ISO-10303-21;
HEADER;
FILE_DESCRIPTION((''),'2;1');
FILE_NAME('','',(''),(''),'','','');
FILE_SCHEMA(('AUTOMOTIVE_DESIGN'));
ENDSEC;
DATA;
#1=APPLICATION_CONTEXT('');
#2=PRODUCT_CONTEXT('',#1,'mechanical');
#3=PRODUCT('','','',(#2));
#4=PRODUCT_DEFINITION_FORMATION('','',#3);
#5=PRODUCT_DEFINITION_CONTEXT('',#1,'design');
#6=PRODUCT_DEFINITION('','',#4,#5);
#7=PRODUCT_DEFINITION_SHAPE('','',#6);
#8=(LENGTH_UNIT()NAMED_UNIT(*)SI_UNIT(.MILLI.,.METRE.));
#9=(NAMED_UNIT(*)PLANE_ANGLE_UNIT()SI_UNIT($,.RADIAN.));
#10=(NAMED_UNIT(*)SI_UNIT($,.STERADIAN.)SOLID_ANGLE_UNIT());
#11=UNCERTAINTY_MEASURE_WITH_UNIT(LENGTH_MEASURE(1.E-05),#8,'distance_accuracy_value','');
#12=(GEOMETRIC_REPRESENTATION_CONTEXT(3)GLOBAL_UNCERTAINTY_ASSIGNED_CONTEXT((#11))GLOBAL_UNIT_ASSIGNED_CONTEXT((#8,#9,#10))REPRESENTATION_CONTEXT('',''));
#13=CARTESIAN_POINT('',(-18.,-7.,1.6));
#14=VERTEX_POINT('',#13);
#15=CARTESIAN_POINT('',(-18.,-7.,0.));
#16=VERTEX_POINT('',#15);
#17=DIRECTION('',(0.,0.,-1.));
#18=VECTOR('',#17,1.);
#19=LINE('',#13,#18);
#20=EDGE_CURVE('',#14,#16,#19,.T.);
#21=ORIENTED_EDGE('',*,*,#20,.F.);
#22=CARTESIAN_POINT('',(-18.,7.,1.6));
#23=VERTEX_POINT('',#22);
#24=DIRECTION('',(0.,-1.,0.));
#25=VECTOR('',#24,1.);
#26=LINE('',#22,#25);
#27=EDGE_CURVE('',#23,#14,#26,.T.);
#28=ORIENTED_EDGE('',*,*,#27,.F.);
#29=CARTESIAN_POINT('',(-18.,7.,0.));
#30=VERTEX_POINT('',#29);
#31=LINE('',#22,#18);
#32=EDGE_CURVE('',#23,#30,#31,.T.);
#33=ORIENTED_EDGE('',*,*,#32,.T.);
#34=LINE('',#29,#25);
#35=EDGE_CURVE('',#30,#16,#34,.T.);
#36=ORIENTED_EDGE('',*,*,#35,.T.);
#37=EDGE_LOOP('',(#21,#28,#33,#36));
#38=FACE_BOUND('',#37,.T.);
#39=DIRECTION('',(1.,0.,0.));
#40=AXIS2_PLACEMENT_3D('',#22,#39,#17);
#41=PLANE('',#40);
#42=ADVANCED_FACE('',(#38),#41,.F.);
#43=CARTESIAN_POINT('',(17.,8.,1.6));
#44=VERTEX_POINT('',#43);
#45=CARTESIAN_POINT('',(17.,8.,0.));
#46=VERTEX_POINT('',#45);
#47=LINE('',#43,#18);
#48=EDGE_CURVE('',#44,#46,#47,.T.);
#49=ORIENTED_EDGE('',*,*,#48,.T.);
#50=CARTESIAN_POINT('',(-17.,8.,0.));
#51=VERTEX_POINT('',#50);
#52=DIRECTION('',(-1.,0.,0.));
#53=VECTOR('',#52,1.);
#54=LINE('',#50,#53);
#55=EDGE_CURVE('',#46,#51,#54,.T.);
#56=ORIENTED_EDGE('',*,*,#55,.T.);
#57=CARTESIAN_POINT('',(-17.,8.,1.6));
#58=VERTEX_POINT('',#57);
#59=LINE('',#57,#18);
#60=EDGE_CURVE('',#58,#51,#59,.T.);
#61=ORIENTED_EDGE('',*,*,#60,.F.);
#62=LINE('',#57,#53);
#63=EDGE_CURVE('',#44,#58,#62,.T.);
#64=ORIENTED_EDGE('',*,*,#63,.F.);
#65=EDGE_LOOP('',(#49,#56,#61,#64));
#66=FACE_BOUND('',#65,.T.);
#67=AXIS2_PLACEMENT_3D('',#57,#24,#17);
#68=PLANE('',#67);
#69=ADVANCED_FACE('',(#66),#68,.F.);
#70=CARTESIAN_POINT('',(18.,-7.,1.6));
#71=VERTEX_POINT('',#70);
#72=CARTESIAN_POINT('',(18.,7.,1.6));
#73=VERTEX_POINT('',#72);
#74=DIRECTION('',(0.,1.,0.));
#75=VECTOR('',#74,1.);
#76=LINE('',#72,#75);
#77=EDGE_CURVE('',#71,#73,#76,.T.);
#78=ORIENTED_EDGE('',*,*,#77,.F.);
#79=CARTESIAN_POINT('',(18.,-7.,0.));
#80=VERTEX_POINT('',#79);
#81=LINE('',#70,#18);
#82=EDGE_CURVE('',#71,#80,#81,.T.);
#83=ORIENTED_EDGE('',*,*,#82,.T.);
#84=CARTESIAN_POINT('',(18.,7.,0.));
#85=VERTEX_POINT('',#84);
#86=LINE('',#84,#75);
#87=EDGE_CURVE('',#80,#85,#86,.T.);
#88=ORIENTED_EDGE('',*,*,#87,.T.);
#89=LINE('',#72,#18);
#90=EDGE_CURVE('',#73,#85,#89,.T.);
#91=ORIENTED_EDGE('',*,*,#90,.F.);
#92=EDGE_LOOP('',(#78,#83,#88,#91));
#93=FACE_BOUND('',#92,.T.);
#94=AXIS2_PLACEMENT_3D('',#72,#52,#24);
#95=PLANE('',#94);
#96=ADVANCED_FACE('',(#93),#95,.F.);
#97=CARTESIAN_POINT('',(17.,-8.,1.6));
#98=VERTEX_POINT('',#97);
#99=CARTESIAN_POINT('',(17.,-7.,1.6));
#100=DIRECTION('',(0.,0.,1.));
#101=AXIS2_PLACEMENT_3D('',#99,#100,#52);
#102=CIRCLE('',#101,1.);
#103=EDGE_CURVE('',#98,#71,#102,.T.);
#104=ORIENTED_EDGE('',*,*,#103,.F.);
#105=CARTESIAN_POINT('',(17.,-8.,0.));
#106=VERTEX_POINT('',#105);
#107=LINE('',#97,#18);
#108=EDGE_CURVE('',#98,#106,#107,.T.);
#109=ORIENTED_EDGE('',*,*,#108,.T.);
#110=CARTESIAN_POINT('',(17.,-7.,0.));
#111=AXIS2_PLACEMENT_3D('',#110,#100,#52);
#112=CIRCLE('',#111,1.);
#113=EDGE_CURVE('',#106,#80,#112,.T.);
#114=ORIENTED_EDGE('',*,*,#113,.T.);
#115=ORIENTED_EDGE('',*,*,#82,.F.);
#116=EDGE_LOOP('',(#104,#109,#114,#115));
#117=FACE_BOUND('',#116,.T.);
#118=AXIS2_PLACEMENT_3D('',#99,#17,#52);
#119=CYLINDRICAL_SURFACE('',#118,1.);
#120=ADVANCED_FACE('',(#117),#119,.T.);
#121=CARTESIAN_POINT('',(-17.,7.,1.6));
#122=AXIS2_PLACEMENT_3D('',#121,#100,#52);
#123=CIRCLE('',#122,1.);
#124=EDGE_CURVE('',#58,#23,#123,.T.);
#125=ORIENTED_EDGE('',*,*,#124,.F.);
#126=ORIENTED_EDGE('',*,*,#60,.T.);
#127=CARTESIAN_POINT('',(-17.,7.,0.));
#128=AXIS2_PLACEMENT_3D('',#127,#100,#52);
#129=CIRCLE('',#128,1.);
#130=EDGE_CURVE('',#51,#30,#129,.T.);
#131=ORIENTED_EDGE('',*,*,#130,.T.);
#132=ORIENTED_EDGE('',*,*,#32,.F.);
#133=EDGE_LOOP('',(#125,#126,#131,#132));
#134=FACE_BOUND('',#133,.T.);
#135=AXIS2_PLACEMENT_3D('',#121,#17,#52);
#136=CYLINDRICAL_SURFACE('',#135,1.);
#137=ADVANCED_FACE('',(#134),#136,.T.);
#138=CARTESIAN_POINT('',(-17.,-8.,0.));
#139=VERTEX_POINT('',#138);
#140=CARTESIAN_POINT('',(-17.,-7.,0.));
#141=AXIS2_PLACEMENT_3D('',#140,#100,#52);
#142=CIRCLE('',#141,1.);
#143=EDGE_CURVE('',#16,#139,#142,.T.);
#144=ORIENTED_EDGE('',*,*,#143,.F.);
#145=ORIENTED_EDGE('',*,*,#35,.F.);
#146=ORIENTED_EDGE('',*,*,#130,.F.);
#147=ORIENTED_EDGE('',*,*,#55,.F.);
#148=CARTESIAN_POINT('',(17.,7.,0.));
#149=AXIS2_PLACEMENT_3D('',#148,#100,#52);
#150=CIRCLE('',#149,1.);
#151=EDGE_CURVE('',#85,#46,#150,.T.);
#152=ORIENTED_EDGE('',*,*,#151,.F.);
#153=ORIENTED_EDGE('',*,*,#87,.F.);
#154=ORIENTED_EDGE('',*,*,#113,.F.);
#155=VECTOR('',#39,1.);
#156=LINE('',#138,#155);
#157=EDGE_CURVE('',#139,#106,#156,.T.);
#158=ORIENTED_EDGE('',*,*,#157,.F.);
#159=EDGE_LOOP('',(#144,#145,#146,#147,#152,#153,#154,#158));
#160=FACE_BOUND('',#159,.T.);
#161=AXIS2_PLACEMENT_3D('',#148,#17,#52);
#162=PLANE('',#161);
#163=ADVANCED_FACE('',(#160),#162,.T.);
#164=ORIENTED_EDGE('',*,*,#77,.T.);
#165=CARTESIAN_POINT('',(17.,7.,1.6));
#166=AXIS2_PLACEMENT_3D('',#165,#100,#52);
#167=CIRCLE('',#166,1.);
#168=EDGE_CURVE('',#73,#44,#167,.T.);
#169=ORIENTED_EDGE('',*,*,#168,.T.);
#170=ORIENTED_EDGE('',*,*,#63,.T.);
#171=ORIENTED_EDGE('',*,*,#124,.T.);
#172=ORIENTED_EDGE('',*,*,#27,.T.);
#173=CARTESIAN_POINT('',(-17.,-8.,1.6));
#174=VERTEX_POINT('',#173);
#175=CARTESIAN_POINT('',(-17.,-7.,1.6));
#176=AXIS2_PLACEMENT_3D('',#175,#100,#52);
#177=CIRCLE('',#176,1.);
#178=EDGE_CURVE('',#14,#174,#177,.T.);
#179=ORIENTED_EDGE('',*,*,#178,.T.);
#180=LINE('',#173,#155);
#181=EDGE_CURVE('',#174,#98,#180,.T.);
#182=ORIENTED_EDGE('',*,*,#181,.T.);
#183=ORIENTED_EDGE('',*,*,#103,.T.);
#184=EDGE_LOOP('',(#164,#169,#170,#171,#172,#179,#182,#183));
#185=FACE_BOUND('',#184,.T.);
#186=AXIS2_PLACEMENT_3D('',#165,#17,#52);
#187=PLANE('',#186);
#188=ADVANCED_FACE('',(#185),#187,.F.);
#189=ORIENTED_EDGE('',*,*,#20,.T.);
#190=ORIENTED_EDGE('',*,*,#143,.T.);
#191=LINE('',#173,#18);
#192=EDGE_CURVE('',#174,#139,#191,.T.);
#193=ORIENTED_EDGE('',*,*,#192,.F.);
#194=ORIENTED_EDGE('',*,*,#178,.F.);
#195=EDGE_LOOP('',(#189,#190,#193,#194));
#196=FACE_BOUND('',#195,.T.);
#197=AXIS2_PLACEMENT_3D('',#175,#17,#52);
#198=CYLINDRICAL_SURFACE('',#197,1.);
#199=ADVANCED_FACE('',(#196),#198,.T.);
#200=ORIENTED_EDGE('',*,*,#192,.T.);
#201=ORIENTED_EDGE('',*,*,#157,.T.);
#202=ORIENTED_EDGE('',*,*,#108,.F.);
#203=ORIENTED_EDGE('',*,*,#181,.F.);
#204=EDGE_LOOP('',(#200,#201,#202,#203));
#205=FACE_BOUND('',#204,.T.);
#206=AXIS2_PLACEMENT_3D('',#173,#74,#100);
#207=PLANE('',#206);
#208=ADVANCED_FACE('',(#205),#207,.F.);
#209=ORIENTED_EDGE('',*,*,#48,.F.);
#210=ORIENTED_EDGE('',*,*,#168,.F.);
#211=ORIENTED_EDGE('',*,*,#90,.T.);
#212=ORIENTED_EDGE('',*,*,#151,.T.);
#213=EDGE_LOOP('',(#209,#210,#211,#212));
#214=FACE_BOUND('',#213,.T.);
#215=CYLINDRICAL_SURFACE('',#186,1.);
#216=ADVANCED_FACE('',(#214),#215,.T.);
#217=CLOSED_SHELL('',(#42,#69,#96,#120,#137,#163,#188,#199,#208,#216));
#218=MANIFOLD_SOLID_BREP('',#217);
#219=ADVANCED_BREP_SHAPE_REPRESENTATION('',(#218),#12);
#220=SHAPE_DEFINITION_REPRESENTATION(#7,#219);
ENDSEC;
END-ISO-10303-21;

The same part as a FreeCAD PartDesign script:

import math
import FreeCAD as App
import Part
import Sketcher

V = App.Vector
Q = App.Units.Quantity

doc = App.newDocument("Part")
body = doc.addObject("PartDesign::Body", "Body")

# Sketch on XY plane
sketch1 = body.newObject("Sketcher::SketchObject", "Sketch")
sketch1.AttachmentSupport = (doc.getObject("XY_Plane"), [""])
sketch1.MapMode = "FlatFace"
sketch1.addGeometry(Part.LineSegment(V(17, 8, 0), V(-17, 8, 0)), False)
sketch1.addGeometry(Part.ArcOfCircle(Part.Circle(V(-17, 7, 0), V(0, 0, 1), 1), math.radians(90), math.radians(180)), False)
sketch1.addGeometry(Part.LineSegment(V(-18, 7, 0), V(-18, -7, 0)), False)
sketch1.addGeometry(Part.ArcOfCircle(Part.Circle(V(-17, -7, 0), V(0, 0, 1), 1), math.radians(-180), math.radians(-90)), False)
sketch1.addGeometry(Part.LineSegment(V(-17, -8, 0), V(17, -8, 0)), False)
sketch1.addGeometry(Part.ArcOfCircle(Part.Circle(V(17, -7, 0), V(0, 0, 1), 1), math.radians(-90), math.radians(0)), False)
sketch1.addGeometry(Part.LineSegment(V(18, -7, 0), V(18, 7, 0)), False)
sketch1.addGeometry(Part.ArcOfCircle(Part.Circle(V(17, 7, 0), V(0, 0, 1), 1), math.radians(0), math.radians(90)), False)
sketch1.addConstraint(Sketcher.Constraint("Tangent", 0, 2, 1, 1))
sketch1.addConstraint(Sketcher.Constraint("Tangent", 1, 2, 2, 1))
sketch1.addConstraint(Sketcher.Constraint("Tangent", 2, 2, 3, 1))
sketch1.addConstraint(Sketcher.Constraint("Tangent", 3, 2, 4, 1))
sketch1.addConstraint(Sketcher.Constraint("Tangent", 4, 2, 5, 1))
sketch1.addConstraint(Sketcher.Constraint("Tangent", 5, 2, 6, 1))
sketch1.addConstraint(Sketcher.Constraint("Tangent", 6, 2, 7, 1))
sketch1.addConstraint(Sketcher.Constraint("Tangent", 7, 2, 0, 1))
sketch1.addConstraint(Sketcher.Constraint("Horizontal", 0))
sketch1.addConstraint(Sketcher.Constraint("Vertical", 2))
sketch1.addConstraint(Sketcher.Constraint("Horizontal", 4))
sketch1.addConstraint(Sketcher.Constraint("Vertical", 6))
sketch1.addConstraint(Sketcher.Constraint("Equal", 1, 3))
sketch1.addConstraint(Sketcher.Constraint("Equal", 3, 5))
sketch1.addConstraint(Sketcher.Constraint("Equal", 5, 7))
sketch1.addConstraint(Sketcher.Constraint("Symmetric", 1, 3, 5, 3, -1, 1))
sketch1.addConstraint(Sketcher.Constraint("Radius", 1, Q("1 mm")))
sketch1.addConstraint(Sketcher.Constraint("DistanceX", 0, 2, 0, 1, Q("34 mm")))
sketch1.addConstraint(Sketcher.Constraint("DistanceY", 2, 2, 2, 1, Q("14 mm")))
pad1 = body.newObject("PartDesign::Pad", "Pad")
pad1.Profile = sketch1
pad1.Length = 1.6

doc.recompute()
